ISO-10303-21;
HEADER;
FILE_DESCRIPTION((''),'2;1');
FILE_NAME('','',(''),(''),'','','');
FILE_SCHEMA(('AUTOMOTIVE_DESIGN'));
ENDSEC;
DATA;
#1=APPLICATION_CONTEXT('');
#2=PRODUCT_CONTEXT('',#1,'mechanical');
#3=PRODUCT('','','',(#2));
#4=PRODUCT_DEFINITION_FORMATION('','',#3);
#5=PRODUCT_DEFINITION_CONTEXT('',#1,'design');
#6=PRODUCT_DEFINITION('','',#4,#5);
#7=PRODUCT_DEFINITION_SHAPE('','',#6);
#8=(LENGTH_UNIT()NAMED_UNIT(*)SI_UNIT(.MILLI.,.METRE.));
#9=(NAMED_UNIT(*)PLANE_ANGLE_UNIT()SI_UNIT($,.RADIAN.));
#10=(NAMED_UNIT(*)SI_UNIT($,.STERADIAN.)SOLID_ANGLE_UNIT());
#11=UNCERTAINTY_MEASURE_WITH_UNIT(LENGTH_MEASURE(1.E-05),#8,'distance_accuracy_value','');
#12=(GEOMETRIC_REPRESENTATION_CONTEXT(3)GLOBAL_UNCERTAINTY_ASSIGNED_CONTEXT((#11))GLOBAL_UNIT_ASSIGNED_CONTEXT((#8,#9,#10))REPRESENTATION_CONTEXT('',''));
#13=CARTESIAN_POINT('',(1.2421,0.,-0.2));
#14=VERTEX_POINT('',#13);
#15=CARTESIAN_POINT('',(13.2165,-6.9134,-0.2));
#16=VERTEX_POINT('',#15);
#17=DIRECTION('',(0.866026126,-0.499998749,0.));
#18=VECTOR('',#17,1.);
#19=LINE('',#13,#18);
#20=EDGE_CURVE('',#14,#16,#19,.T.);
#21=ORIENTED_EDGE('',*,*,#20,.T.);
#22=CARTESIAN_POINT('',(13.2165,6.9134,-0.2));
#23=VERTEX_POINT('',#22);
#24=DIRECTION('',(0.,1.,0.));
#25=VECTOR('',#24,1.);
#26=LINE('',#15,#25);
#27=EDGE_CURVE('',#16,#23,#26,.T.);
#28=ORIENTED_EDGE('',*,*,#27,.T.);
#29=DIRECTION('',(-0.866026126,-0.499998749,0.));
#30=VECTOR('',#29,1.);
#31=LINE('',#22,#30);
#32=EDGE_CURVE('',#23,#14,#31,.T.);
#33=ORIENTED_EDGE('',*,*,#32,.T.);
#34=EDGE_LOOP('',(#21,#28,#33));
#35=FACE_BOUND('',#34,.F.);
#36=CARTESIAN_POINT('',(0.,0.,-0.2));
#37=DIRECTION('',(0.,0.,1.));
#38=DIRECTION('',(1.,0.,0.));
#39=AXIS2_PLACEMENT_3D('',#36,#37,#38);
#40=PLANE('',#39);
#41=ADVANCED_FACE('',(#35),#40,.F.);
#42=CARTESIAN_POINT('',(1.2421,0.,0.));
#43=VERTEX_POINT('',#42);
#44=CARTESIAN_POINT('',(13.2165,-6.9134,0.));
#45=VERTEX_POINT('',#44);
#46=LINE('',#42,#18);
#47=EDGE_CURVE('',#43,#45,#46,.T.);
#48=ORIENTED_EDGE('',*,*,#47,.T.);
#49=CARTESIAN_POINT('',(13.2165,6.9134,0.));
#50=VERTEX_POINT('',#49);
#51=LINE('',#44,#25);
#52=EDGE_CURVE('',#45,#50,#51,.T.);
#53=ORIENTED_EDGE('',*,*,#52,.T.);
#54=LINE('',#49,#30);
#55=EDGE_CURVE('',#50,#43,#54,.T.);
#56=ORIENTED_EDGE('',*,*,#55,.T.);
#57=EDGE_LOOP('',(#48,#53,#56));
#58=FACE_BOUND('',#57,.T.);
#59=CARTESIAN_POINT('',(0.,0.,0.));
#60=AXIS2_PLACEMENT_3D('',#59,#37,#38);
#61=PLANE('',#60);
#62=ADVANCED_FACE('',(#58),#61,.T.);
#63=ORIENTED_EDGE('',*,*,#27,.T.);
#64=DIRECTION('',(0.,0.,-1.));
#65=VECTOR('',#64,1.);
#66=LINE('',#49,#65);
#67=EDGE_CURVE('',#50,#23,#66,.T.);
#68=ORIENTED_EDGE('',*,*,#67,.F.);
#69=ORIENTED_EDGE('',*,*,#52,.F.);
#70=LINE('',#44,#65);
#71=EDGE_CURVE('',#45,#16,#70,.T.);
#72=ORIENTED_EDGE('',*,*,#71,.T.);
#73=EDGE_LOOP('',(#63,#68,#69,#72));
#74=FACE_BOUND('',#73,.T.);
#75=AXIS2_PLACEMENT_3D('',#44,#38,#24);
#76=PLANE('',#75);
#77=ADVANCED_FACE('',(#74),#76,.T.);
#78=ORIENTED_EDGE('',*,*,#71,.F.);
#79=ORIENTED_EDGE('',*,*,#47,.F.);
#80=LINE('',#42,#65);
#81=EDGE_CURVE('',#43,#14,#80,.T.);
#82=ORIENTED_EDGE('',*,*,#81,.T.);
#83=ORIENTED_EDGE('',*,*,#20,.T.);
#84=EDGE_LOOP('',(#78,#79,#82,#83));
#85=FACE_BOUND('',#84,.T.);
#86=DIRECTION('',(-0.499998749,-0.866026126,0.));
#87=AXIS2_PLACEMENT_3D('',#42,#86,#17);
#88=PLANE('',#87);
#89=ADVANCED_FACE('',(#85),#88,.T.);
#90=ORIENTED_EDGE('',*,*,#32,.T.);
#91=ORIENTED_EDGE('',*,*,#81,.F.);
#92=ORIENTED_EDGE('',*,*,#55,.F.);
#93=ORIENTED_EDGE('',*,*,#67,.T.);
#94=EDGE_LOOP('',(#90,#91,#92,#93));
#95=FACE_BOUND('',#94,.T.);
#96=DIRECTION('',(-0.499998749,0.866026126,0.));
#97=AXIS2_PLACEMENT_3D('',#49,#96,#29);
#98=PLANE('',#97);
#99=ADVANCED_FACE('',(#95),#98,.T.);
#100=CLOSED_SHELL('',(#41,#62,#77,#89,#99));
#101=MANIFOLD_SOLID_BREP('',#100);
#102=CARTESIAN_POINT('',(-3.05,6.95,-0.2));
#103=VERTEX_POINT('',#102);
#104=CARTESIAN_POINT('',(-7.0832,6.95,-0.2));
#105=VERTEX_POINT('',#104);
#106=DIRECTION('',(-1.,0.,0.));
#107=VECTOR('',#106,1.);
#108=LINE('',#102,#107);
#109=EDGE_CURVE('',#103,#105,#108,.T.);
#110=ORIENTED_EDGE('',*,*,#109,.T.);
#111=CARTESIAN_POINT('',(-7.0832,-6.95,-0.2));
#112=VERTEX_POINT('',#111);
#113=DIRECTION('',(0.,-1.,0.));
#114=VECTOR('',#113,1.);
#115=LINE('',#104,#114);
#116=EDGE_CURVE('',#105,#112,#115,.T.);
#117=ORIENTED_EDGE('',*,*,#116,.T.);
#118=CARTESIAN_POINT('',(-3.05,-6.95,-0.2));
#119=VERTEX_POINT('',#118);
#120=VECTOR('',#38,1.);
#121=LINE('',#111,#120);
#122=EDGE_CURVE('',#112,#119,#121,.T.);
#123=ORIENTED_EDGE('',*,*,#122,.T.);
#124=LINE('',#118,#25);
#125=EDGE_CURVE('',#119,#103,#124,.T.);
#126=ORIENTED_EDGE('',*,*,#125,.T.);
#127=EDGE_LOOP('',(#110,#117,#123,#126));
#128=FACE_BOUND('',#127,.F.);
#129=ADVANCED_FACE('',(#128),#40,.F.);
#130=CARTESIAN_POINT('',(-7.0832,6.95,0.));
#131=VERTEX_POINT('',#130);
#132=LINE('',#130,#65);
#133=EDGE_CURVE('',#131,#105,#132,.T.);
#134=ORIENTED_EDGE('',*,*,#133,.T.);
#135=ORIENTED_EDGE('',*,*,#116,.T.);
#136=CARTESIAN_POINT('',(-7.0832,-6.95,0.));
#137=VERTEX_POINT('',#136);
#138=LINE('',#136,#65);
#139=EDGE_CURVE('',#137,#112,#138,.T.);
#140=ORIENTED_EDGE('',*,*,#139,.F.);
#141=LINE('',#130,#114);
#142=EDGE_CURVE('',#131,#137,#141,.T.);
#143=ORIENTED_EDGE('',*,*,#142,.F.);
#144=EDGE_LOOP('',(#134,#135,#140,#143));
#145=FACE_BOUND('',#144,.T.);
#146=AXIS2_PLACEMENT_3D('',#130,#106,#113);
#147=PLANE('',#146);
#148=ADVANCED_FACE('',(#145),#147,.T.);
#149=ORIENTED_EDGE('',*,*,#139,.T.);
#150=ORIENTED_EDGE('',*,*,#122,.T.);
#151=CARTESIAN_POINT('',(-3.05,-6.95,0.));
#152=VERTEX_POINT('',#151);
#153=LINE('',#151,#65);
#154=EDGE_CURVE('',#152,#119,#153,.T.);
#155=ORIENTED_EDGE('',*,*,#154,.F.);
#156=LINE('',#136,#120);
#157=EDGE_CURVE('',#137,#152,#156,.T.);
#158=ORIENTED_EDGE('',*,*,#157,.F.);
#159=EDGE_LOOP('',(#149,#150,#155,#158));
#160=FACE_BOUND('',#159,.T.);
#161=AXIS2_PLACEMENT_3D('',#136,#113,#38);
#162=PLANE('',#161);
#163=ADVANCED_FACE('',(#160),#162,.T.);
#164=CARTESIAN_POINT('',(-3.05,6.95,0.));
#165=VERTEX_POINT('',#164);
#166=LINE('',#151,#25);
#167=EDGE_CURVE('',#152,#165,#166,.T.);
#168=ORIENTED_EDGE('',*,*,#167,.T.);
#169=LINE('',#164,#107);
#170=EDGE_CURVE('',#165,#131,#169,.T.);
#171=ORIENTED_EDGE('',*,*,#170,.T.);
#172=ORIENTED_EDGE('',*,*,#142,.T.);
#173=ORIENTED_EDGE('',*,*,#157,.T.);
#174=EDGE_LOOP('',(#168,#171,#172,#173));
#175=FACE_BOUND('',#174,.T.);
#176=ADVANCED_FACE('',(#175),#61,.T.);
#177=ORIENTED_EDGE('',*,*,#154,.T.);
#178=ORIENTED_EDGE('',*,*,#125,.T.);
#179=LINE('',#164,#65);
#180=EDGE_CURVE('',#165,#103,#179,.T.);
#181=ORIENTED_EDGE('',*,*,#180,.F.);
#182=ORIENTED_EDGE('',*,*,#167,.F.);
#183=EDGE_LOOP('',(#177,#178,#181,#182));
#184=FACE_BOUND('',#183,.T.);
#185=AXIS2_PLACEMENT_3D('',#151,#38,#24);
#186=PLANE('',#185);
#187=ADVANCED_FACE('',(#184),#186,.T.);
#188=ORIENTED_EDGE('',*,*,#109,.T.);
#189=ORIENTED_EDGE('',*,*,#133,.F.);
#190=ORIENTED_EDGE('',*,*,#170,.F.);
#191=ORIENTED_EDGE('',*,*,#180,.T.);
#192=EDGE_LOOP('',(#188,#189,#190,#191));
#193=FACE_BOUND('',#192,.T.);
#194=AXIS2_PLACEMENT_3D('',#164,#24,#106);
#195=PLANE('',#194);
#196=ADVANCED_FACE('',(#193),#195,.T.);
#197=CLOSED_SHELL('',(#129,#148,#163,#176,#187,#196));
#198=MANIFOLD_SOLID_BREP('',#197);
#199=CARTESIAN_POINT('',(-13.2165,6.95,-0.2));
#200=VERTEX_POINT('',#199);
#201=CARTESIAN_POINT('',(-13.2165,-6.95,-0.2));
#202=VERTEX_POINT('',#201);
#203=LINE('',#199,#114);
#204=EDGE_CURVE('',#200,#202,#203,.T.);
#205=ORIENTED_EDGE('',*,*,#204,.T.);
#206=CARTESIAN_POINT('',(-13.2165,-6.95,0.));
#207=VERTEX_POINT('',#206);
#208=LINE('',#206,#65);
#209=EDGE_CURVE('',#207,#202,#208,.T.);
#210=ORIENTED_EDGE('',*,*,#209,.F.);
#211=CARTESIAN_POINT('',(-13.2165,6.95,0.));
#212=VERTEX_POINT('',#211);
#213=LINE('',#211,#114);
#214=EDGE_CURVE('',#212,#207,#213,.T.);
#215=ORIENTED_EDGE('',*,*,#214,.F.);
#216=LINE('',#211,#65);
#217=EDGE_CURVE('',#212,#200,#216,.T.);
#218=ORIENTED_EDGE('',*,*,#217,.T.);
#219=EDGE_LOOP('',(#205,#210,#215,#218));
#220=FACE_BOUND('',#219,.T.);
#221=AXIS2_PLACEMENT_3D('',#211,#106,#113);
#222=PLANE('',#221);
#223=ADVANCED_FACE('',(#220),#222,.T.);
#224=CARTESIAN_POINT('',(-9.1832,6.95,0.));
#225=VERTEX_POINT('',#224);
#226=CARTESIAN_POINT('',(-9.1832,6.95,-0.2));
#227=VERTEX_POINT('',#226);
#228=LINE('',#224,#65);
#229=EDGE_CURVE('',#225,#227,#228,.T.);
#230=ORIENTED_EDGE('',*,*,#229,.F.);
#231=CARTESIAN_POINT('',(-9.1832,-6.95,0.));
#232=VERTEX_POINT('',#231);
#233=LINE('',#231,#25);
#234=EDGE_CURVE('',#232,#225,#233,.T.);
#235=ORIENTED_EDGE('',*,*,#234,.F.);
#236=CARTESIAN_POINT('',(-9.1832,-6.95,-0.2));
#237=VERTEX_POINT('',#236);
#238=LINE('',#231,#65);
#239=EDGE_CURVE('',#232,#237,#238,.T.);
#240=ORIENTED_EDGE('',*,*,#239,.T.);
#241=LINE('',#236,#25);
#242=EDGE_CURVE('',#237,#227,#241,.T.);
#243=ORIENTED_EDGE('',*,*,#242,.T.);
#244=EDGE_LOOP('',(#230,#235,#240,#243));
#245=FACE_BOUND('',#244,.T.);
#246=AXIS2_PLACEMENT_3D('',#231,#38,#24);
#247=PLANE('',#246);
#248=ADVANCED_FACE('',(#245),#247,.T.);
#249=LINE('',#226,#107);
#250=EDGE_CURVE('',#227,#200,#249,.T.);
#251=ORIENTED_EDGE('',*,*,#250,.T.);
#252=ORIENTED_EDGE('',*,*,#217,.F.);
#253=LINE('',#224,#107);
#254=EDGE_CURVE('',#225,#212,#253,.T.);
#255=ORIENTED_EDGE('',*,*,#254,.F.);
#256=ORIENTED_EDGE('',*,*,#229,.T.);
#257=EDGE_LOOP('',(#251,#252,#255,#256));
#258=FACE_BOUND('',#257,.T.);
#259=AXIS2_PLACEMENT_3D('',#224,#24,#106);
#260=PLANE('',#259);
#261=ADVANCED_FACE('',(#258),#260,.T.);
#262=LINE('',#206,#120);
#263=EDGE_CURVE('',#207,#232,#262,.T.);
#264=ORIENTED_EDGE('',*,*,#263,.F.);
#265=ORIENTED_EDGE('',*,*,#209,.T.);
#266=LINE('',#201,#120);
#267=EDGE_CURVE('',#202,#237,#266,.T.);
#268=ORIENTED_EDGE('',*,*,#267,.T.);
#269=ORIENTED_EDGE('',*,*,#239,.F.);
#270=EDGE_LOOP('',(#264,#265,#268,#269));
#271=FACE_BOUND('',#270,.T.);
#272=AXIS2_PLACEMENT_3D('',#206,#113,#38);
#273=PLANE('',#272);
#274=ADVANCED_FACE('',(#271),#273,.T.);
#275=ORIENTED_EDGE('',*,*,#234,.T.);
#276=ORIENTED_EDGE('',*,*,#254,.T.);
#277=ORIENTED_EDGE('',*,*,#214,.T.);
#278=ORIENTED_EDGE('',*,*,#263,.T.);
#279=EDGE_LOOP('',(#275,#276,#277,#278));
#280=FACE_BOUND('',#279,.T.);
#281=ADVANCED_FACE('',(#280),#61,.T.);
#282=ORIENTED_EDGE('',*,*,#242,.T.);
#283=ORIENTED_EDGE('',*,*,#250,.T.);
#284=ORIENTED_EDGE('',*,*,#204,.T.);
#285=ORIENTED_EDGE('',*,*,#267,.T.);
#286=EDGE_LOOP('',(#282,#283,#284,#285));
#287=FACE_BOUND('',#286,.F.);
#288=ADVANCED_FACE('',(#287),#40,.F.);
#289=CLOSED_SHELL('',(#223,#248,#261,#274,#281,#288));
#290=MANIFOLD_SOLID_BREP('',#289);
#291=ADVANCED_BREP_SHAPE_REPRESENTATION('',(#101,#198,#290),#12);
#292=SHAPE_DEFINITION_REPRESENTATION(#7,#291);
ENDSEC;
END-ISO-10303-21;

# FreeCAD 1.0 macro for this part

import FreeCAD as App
import Part
import Sketcher

V = App.Vector
Q = App.Units.Quantity

doc = App.newDocument("Part")
body = doc.addObject("PartDesign::Body", "Body")
body.AllowCompound = True

# Sketch on XY plane
sketch1 = body.newObject("Sketcher::SketchObject", "Sketch")
sketch1.AttachmentSupport = (doc.getObject("XY_Plane"), [""])
sketch1.MapMode = "FlatFace"
sketch1.addGeometry(Part.LineSegment(V(-7.1, -7, 0), V(-3, -7, 0)), False)
sketch1.addGeometry(Part.LineSegment(V(-3, -7, 0), V(-3, 7, 0)), False)
sketch1.addGeometry(Part.LineSegment(V(-3, 7, 0), V(-7.1, 7, 0)), False)
sketch1.addGeometry(Part.LineSegment(V(-7.1, 7, 0), V(-7.1, -7, 0)), False)
sketch1.addGeometry(Part.LineSegment(V(-13.2, -7, 0), V(-9.2, -7, 0)), False)
sketch1.addGeometry(Part.LineSegment(V(-9.2, -7, 0), V(-9.2, 7, 0)), False)
sketch1.addGeometry(Part.LineSegment(V(-9.2, 7, 0), V(-13.2, 7, 0)), False)
sketch1.addGeometry(Part.LineSegment(V(-13.2, 7, 0), V(-13.2, -7, 0)), False)
sketch1.addGeometry(Part.LineSegment(V(13.2, -6.9, 0), V(13.2, 6.9, 0)), False)
sketch1.addGeometry(Part.LineSegment(V(13.2, 6.9, 0), V(1.2, 0, 0)), False)
sketch1.addGeometry(Part.LineSegment(V(1.2, 0, 0), V(13.2, -6.9, 0)), False)
sketch1.addConstraint(Sketcher.Constraint("Coincident", 0, 2, 1, 1))
sketch1.addConstraint(Sketcher.Constraint("Coincident", 1, 2, 2, 1))
sketch1.addConstraint(Sketcher.Constraint("Coincident", 2, 2, 3, 1))
sketch1.addConstraint(Sketcher.Constraint("Coincident", 3, 2, 0, 1))
sketch1.addConstraint(Sketcher.Constraint("Coincident", 4, 2, 5, 1))
sketch1.addConstraint(Sketcher.Constraint("Coincident", 5, 2, 6, 1))
sketch1.addConstraint(Sketcher.Constraint("Coincident", 6, 2, 7, 1))
sketch1.addConstraint(Sketcher.Constraint("Coincident", 7, 2, 4, 1))
sketch1.addConstraint(Sketcher.Constraint("Coincident", 8, 2, 9, 1))
sketch1.addConstraint(Sketcher.Constraint("Coincident", 9, 2, 10, 1))
sketch1.addConstraint(Sketcher.Constraint("Coincident", 10, 2, 8, 1))
sketch1.addConstraint(Sketcher.Constraint("Horizontal", 0))
sketch1.addConstraint(Sketcher.Constraint("Vertical", 1))
sketch1.addConstraint(Sketcher.Constraint("Horizontal", 2))
sketch1.addConstraint(Sketcher.Constraint("Vertical", 3))
sketch1.addConstraint(Sketcher.Constraint("Horizontal", 4))
sketch1.addConstraint(Sketcher.Constraint("Vertical", 5))
sketch1.addConstraint(Sketcher.Constraint("Horizontal", 6))
sketch1.addConstraint(Sketcher.Constraint("Vertical", 7))
sketch1.addConstraint(Sketcher.Constraint("Vertical", 8))
sketch1.addConstraint(Sketcher.Constraint("PointOnObject", 9, 2, -1))
sketch1.addConstraint(Sketcher.Constraint("Horizontal", 3, 2, 4, 2))
sketch1.addConstraint(Sketcher.Constraint("Horizontal", 2, 2, 5, 2))
sketch1.addConstraint(Sketcher.Constraint("Equal", 2, 4))
sketch1.addConstraint(Sketcher.Constraint("Equal", 9, 10))
sketch1.addConstraint(Sketcher.Constraint("Angle", 9, Q("-150 deg")))
sketch1.addConstraint(Sketcher.Constraint("DistanceY", 1, 1, 1, 2, Q("13.9 mm")))
sketch1.addConstraint(Sketcher.Constraint("DistanceX", 4, 2, 3, 2, Q("2.1 mm")))
sketch1.addConstraint(Sketcher.Constraint("DistanceX", 0, 2, -1, 1, Q("3.05 mm")))
sketch1.addConstraint(Sketcher.Constraint("DistanceY", 0, 2, -1, 1, Q("6.95 mm")))
sketch1.addConstraint(Sketcher.Constraint("DistanceX", 0, 1, 0, 2, Q("4.0332 mm")))
sketch1.addConstraint(Sketcher.Constraint("DistanceY", 8, 1, 8, 2, Q("13.8268 mm")))
sketch1.addConstraint(Sketcher.Constraint("DistanceX", -1, 1, 9, 2, Q("1.242 mm")))
pad1 = body.newObject("PartDesign::Pad", "Pad")
pad1.Profile = sketch1
pad1.Length = 0.2
pad1.Reversed = True

doc.recompute()
